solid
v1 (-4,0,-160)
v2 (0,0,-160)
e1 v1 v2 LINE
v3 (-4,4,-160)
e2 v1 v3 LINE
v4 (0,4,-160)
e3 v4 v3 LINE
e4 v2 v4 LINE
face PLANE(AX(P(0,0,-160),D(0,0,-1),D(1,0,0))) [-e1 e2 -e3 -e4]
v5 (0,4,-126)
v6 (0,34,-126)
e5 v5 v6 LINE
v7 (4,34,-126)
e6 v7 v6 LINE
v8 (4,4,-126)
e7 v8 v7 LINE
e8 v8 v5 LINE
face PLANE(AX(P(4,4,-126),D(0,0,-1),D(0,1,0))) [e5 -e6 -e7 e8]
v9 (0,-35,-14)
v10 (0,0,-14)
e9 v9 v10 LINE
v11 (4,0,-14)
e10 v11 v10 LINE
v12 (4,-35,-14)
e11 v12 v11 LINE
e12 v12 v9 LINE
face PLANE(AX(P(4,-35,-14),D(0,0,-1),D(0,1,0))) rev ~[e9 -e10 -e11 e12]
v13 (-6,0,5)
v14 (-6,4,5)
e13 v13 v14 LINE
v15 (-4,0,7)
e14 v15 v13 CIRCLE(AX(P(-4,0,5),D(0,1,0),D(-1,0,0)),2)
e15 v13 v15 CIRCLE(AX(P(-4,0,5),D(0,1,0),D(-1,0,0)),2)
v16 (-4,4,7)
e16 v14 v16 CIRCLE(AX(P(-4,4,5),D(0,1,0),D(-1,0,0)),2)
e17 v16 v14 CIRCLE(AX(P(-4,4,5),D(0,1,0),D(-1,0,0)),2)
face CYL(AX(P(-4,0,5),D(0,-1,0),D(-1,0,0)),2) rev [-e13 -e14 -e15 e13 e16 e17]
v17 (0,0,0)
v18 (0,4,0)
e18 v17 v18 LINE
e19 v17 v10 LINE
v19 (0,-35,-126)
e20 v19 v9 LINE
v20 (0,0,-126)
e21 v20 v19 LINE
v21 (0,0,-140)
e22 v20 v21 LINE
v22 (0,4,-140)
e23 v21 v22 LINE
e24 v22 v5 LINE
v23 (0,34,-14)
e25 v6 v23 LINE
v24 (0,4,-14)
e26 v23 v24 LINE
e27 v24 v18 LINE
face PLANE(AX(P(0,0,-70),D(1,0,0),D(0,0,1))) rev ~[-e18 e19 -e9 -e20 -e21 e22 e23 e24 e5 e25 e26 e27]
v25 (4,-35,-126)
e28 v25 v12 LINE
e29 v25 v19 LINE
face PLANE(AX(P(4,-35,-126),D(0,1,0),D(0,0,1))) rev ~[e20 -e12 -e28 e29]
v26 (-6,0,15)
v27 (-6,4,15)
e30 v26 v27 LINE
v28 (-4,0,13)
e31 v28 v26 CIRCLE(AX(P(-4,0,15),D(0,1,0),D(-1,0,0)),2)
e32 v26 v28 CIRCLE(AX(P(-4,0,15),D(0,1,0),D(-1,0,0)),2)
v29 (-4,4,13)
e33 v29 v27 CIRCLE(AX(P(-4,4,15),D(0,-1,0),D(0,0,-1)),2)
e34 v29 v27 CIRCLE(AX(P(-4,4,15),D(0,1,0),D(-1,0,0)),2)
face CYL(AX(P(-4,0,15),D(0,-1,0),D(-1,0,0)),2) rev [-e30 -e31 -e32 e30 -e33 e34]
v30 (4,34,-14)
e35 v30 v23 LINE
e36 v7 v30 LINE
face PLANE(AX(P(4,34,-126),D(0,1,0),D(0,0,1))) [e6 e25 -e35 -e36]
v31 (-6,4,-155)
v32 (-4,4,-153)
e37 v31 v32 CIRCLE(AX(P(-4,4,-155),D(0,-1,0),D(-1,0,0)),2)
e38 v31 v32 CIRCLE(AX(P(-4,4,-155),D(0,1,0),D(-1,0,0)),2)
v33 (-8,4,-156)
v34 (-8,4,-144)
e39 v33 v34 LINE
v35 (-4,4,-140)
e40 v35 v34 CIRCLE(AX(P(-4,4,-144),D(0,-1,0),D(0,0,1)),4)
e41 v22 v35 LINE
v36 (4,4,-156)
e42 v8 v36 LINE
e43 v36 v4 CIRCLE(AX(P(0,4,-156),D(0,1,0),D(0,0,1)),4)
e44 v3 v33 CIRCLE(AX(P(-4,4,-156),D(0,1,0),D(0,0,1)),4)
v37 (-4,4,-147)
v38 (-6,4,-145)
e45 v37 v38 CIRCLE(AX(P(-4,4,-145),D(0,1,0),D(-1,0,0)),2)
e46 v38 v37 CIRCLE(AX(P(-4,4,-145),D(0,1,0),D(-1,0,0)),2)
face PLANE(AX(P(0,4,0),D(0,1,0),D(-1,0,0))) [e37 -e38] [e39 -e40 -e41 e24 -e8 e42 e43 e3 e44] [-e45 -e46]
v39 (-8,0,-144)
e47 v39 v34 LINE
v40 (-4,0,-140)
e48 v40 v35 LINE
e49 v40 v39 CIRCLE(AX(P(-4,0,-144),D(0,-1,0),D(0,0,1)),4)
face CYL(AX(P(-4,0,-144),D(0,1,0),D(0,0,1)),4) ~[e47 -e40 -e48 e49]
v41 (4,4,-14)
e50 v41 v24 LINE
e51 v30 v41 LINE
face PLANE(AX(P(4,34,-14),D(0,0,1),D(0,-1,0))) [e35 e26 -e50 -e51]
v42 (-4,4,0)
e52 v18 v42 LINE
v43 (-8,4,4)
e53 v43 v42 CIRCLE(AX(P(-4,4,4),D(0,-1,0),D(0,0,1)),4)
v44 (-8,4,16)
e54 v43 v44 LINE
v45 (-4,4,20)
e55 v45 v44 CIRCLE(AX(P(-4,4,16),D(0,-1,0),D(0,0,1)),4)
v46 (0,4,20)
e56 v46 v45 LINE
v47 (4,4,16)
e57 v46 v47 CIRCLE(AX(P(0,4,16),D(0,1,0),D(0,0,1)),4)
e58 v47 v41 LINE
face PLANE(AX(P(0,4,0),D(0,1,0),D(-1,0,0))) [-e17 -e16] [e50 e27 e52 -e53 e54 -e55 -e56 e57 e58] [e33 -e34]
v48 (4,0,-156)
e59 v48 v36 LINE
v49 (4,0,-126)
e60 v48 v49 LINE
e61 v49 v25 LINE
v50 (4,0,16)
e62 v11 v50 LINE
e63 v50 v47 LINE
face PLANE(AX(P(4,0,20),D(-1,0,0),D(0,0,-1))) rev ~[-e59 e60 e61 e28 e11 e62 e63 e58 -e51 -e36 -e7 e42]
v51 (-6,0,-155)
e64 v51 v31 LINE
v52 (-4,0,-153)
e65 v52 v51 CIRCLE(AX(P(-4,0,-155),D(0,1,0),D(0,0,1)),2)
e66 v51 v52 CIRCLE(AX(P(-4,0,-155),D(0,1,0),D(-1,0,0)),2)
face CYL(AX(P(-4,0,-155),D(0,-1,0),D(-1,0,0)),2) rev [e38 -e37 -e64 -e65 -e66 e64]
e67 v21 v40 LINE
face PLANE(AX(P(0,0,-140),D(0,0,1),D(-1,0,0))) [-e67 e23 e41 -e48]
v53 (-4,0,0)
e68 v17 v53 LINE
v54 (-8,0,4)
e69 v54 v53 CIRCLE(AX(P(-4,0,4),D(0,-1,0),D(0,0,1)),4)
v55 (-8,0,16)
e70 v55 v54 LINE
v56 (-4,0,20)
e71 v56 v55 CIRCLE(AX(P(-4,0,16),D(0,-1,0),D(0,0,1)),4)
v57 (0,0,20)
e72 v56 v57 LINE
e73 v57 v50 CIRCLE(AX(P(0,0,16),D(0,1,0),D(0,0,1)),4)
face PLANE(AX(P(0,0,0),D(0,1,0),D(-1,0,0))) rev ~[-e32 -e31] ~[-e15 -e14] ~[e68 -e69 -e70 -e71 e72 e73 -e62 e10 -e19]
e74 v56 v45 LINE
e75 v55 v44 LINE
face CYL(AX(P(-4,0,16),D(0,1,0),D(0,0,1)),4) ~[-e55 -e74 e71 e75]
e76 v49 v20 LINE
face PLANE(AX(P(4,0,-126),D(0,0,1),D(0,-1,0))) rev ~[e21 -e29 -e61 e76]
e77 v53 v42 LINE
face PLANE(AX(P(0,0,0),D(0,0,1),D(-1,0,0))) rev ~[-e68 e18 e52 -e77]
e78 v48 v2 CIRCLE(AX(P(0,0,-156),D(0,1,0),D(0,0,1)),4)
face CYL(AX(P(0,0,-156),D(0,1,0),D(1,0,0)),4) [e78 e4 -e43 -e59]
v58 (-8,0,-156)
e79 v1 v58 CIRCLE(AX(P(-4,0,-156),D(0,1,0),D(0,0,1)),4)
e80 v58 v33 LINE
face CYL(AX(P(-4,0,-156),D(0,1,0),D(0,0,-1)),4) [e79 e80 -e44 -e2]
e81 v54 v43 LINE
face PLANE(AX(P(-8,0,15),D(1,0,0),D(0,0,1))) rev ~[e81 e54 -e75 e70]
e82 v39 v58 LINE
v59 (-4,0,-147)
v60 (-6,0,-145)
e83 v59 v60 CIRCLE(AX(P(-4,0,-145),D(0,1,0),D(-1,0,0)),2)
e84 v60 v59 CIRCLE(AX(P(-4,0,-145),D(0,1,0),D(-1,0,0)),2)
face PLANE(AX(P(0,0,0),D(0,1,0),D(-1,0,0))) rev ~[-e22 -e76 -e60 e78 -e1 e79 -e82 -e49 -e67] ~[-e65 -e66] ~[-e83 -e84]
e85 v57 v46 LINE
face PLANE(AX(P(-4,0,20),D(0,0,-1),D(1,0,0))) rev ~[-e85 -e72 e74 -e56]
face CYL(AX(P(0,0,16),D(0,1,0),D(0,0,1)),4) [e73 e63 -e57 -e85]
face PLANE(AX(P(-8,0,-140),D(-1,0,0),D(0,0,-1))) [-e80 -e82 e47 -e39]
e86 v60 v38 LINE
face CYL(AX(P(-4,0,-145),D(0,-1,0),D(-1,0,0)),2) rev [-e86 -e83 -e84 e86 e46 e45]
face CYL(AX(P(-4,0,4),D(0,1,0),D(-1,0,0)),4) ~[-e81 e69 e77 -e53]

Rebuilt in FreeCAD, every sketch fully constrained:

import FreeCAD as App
import Part
import Sketcher
from FreeCAD import Vector
Q = App.Units.Quantity


def edges_at(feature, points):
    """Names of the edges that pass closest to the given points."""
    edges = feature.Shape.Edges
    near = lambda p: min(range(len(edges)), key=lambda i: edges[i].distToShape(Part.Vertex(*p))[0])
    return sorted({f"Edge{near(p) + 1}" for p in points})

doc = App.newDocument("Part")
params = doc.addObject("Spreadsheet::Sheet", "Params")
for row, (alias, value) in enumerate([
    ("sketch1_diameter", "4 mm"),
    ("sketch1_width", "8 mm"),
    ("sketch1_height", "20 mm"),
    ("sketch1_height2", "180 mm"),
    ("pad1_length", "4 mm"),
    ("fillet_radius", "4 mm"),
    ("sketch2_width", "30 mm"),
    ("sketch2_width2", "35 mm"),
    ("sketch2_height", "112 mm"),
    ("pad2_length", "4 mm"),
], start=1):
    params.set(f"A{row}", alias)
    params.set(f"B{row}", "=" + value)
    params.setAlias(f"B{row}", alias)

body = doc.addObject("PartDesign::Body", "Body")

sketch1 = body.newObject("Sketcher::SketchObject", "Sketch")
sketch1.AttachmentSupport = (doc.getObject("XZ_Plane"), [""])
sketch1.MapMode = "FlatFace"
sketch1.addGeometry([
    Part.LineSegment(Vector(4, 20, 0), Vector(4, -160, 0)),
    Part.LineSegment(Vector(4, -160, 0), Vector(-8, -160, 0)),
    Part.LineSegment(Vector(-8, -160, 0), Vector(-8, -140, 0)),
    Part.LineSegment(Vector(-8, -140, 0), Vector(0, -140, 0)),
    Part.LineSegment(Vector(0, -140, 0), Vector(0, 0, 0)),
    Part.LineSegment(Vector(0, 0, 0), Vector(-8, 0, 0)),
    Part.LineSegment(Vector(-8, 0, 0), Vector(-8, 20, 0)),
    Part.LineSegment(Vector(-8, 20, 0), Vector(4, 20, 0)),
    Part.Circle(Vector(-4, 15, 0), Vector(0, 0, 1), 2),
    Part.Circle(Vector(-4, 5, 0), Vector(0, 0, 1), 2),
    Part.Circle(Vector(-4, -155, 0), Vector(0, 0, 1), 2),
    Part.Circle(Vector(-4, -145, 0), Vector(0, 0, 1), 2),
], False)
sketch1.addConstraint([
    Sketcher.Constraint("Coincident", 0, 2, 1, 1),
    Sketcher.Constraint("Coincident", 1, 2, 2, 1),
    Sketcher.Constraint("Coincident", 2, 2, 3, 1),
    Sketcher.Constraint("Coincident", 3, 2, 4, 1),
    Sketcher.Constraint("Coincident", 4, 2, 5, 1),
    Sketcher.Constraint("Coincident", 5, 2, 6, 1),
    Sketcher.Constraint("Coincident", 6, 2, 7, 1),
    Sketcher.Constraint("Coincident", 7, 2, 0, 1),
    Sketcher.Constraint("Vertical", 0),
    Sketcher.Constraint("Horizontal", 1),
    Sketcher.Constraint("Vertical", 2),
    Sketcher.Constraint("Horizontal", 3),
    Sketcher.Constraint("Vertical", 4),
    Sketcher.Constraint("Horizontal", 5),
    Sketcher.Constraint("Vertical", 6),
    Sketcher.Constraint("Horizontal", 7),
    Sketcher.Constraint("Coincident", 4, 2, -1, 1),
    Sketcher.Constraint("Equal", 8, 9),
    Sketcher.Constraint("Equal", 9, 10),
    Sketcher.Constraint("Equal", 10, 11),
    Sketcher.Constraint("Vertical", 8, 3, 9, 3),
    Sketcher.Constraint("Vertical", 9, 3, 10, 3),
    Sketcher.Constraint("Vertical", 10, 3, 11, 3),
    Sketcher.Constraint("Vertical", 2, 2, 5, 2),
    Sketcher.Constraint("Equal", 2, 6),
    Sketcher.Constraint("Diameter", 8, Q("4 mm")),
    Sketcher.Constraint("DistanceX", 3, 1, 3, 2, Q("8 mm")),
    Sketcher.Constraint("DistanceY", 2, 1, 2, 2, Q("20 mm")),
    Sketcher.Constraint("DistanceX", 8, 3, -1, 1, Q("4 mm")),
    Sketcher.Constraint("DistanceY", -1, 1, 9, 3, Q("5 mm")),
    Sketcher.Constraint("DistanceX", -1, 1, 0, 2, Q("4 mm")),
    Sketcher.Constraint("DistanceY", 9, 3, 8, 3, Q("10 mm")),
    Sketcher.Constraint("DistanceY", 10, 3, 11, 3, Q("10 mm")),
    Sketcher.Constraint("DistanceY", 0, 2, 10, 3, Q("5 mm")),
    Sketcher.Constraint("DistanceY", 0, 2, 0, 1, Q("180 mm")),
])
sketch1.setExpression("Constraints[25]", "Params.sketch1_diameter")
sketch1.setExpression("Constraints[26]", "Params.sketch1_width")
sketch1.setExpression("Constraints[27]", "Params.sketch1_height")
sketch1.setExpression("Constraints[34]", "Params.sketch1_height2")
pad1 = body.newObject("PartDesign::Pad", "Pad")
pad1.Profile = sketch1
pad1.setExpression("Length", "Params.pad1_length")
pad1.Reversed = True
doc.recompute()

fillet = body.newObject("PartDesign::Fillet", "Fillet")
fillet.Base = (pad1, edges_at(pad1, [
    (-8, 2, -140),
    (-8, 2, -160),
    (4, 2, -160),
    (4, 2, 20),
    (-8, 2, 20),
    (-8, 2, 0),
]))
fillet.setExpression("Radius", "Params.fillet_radius")

sketch2 = body.newObject("Sketcher::SketchObject", "Sketch001")
sketch2.AttachmentSupport = (doc.getObject("YZ_Plane"), [""])
sketch2.MapMode = "FlatFace"
sketch2.AttachmentOffset = App.Placement(Vector(0, 0, 4), App.Rotation())
sketch2.addGeometry([
    Part.LineSegment(Vector(4, -14, 0), Vector(4, -126, 0)),
    Part.LineSegment(Vector(4, -126, 0), Vector(34, -126, 0)),
    Part.LineSegment(Vector(34, -126, 0), Vector(34, -14, 0)),
    Part.LineSegment(Vector(34, -14, 0), Vector(4, -14, 0)),
    Part.LineSegment(Vector(-35, -126, 0), Vector(0, -126, 0)),
    Part.LineSegment(Vector(0, -126, 0), Vector(0, -14, 0)),
    Part.LineSegment(Vector(0, -14, 0), Vector(-35, -14, 0)),
    Part.LineSegment(Vector(-35, -14, 0), Vector(-35, -126, 0)),
], False)
sketch2.addConstraint([
    Sketcher.Constraint("Coincident", 0, 2, 1, 1),
    Sketcher.Constraint("Coincident", 1, 2, 2, 1),
    Sketcher.Constraint("Coincident", 2, 2, 3, 1),
    Sketcher.Constraint("Coincident", 3, 2, 0, 1),
    Sketcher.Constraint("Coincident", 4, 2, 5, 1),
    Sketcher.Constraint("Coincident", 5, 2, 6, 1),
    Sketcher.Constraint("Coincident", 6, 2, 7, 1),
    Sketcher.Constraint("Coincident", 7, 2, 4, 1),
    Sketcher.Constraint("Vertical", 0),
    Sketcher.Constraint("Horizontal", 1),
    Sketcher.Constraint("Vertical", 2),
    Sketcher.Constraint("Horizontal", 3),
    Sketcher.Constraint("Horizontal", 4),
    Sketcher.Constraint("Vertical", 5),
    Sketcher.Constraint("Horizontal", 6),
    Sketcher.Constraint("Vertical", 7),
    Sketcher.Constraint("PointOnObject", 4, 2, -2),
    Sketcher.Constraint("Horizontal", 1, 2, 4, 2),
    Sketcher.Constraint("Horizontal", 3, 2, 5, 2),
    Sketcher.Constraint("DistanceX", 1, 1, 1, 2, Q("30 mm")),
    Sketcher.Constraint("DistanceX", 4, 1, 4, 2, Q("35 mm")),
    Sketcher.Constraint("DistanceY", 0, 2, 0, 1, Q("112 mm")),
    Sketcher.Constraint("DistanceX", -1, 1, 0, 2, Q("4 mm")),
    Sketcher.Constraint("DistanceY", 0, 2, -1, 1, Q("126 mm")),
])
sketch2.setExpression("Constraints[19]", "Params.sketch2_width")
sketch2.setExpression("Constraints[20]", "Params.sketch2_width2")
sketch2.setExpression("Constraints[21]", "Params.sketch2_height")
pad2 = body.newObject("PartDesign::Pad", "Pad001")
pad2.Profile = sketch2
pad2.setExpression("Length", "Params.pad2_length")
pad2.Reversed = True

doc.recompute()
